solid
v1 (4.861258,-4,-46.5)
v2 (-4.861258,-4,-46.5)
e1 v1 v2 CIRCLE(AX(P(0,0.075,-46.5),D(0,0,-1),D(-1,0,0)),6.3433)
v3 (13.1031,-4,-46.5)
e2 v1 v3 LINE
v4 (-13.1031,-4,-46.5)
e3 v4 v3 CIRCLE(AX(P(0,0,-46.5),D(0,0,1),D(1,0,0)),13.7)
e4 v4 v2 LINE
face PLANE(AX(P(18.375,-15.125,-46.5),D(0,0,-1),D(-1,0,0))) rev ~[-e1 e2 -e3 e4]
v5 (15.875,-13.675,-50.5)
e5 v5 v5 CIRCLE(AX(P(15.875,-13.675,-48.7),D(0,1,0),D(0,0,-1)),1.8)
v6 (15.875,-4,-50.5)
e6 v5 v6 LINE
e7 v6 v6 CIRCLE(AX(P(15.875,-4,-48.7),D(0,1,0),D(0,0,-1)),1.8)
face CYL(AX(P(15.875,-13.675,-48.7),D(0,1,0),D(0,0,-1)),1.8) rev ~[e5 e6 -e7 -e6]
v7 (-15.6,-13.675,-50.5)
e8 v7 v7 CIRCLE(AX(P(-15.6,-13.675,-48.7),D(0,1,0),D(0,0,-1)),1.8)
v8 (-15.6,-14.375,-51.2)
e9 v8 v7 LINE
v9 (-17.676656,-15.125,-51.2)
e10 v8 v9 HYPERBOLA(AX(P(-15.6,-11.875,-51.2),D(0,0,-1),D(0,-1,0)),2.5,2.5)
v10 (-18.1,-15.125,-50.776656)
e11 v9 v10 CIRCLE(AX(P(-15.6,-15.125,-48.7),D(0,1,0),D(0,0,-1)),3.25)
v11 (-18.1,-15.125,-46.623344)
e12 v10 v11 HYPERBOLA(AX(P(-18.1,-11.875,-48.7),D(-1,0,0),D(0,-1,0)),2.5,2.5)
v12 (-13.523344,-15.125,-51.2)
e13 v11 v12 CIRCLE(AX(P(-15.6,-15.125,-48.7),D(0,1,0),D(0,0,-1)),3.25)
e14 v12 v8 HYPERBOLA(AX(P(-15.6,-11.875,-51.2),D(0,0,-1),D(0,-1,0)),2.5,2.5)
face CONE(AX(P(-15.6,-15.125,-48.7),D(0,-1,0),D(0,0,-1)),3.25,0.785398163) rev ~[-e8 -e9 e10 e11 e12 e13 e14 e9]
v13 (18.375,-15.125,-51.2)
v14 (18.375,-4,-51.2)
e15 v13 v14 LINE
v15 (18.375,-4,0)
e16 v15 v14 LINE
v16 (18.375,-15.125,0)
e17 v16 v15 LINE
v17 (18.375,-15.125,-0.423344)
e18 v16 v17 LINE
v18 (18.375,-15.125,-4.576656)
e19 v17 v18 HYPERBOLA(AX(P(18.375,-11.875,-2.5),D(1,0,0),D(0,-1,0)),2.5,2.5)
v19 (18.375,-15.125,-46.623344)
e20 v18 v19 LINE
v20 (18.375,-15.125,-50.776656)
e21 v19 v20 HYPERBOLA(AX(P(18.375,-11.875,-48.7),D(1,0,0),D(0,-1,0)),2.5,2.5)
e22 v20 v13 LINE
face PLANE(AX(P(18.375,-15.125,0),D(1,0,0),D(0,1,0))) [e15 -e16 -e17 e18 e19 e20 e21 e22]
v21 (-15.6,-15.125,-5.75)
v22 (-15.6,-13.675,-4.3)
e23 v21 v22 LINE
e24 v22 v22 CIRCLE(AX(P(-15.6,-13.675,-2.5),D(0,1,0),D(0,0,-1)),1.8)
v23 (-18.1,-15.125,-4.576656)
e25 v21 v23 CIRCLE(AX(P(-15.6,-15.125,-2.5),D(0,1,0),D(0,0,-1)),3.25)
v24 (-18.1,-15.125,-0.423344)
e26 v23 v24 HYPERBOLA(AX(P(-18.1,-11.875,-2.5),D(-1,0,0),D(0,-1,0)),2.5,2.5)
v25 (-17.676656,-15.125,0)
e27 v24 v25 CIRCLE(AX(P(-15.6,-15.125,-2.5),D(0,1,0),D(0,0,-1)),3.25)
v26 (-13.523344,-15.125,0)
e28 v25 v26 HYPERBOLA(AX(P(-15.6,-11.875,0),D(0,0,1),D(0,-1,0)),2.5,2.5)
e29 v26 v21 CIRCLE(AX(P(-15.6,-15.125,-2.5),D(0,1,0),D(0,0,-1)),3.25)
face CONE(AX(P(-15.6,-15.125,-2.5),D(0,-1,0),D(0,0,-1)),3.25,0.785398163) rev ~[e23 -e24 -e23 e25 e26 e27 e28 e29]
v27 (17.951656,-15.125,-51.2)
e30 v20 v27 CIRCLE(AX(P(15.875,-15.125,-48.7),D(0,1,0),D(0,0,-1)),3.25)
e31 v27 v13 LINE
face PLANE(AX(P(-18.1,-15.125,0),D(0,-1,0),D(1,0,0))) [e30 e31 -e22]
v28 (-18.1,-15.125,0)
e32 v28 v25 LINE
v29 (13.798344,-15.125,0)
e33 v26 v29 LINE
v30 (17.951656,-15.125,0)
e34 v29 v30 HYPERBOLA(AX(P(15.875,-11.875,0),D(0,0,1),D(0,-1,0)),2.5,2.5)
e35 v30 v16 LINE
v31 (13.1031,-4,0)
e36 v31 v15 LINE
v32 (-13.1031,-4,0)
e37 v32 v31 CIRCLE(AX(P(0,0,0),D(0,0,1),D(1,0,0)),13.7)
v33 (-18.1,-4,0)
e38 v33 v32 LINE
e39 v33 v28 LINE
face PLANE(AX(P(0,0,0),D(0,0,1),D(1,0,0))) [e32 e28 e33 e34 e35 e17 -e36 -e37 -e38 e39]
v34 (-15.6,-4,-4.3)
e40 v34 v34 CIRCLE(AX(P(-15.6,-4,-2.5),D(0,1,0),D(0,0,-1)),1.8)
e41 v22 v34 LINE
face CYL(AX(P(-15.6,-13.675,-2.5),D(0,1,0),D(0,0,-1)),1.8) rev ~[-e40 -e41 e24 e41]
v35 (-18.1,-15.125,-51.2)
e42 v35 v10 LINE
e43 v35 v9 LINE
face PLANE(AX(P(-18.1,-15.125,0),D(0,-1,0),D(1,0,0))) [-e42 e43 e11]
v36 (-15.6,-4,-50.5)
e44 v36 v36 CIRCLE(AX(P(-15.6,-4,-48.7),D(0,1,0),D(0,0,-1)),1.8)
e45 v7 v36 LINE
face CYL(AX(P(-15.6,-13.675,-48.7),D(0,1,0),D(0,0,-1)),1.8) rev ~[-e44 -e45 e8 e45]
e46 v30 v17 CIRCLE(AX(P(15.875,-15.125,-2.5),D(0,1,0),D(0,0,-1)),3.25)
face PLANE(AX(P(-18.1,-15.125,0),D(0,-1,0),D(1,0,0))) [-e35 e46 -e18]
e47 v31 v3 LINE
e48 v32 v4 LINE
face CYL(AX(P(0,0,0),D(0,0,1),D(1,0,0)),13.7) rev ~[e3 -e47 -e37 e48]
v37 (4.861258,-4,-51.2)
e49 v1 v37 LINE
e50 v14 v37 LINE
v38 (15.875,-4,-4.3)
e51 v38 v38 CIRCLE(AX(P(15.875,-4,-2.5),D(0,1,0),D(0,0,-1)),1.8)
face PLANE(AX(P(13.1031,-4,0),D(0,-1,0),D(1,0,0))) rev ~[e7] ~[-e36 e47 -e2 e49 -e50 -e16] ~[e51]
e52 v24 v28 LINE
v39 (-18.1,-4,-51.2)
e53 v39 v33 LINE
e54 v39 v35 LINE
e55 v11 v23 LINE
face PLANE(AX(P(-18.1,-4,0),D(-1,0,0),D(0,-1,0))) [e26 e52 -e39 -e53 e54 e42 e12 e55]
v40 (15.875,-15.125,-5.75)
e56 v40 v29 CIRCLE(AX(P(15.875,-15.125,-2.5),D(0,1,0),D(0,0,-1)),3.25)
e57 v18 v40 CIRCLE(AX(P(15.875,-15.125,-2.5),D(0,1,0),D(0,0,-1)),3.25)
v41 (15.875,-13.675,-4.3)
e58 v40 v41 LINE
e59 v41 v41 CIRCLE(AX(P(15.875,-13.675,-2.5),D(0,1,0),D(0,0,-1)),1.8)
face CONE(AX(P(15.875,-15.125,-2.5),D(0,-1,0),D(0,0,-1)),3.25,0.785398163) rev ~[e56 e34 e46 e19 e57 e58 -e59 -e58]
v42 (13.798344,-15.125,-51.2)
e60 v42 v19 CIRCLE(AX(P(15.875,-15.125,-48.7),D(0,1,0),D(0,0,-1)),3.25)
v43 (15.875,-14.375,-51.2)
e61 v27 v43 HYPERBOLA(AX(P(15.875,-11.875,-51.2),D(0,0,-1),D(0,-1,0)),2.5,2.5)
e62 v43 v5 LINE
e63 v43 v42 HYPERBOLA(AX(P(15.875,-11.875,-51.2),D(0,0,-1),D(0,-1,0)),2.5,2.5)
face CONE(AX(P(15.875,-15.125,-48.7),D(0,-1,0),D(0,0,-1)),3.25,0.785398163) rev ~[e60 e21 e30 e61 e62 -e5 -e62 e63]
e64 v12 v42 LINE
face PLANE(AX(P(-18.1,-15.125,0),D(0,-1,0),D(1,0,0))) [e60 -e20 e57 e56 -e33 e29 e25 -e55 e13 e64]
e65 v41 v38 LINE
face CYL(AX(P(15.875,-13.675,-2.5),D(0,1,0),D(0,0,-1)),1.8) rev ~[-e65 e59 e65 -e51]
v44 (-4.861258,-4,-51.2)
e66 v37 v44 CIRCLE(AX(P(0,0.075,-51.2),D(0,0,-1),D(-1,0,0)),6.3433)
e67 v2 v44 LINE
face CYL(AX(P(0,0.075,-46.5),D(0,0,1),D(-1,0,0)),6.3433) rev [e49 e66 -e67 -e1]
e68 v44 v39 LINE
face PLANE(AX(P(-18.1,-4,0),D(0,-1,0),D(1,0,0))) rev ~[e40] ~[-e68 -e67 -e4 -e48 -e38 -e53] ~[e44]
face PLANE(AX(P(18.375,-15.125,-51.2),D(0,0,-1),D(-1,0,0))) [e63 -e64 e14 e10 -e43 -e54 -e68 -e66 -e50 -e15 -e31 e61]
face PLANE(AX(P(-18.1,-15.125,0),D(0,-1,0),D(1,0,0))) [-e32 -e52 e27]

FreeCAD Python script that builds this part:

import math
import FreeCAD as App
import Part
import Sketcher

doc = App.newDocument("Part")
body = doc.addObject("PartDesign::Body", "Body")

sketch1 = body.newObject("Sketcher::SketchObject", "Sketch")
sketch1.AttachmentSupport = (doc.getObject("XY_Plane"), [""])
sketch1.MapMode = "FlatFace"
sketch1.addGeometry([
    Part.ArcOfCircle(Part.Circle(App.Vector(0, 0, 0), App.Vector(0, 0, 1), 13.7), math.radians(-163), math.radians(-17)),
    Part.LineSegment(App.Vector(-13.1, -4, 0), App.Vector(-18.1, -4, 0)),
    Part.LineSegment(App.Vector(-18.1, -4, 0), App.Vector(-18.1, -15.1, 0)),
    Part.LineSegment(App.Vector(-18.1, -15.1, 0), App.Vector(18.4, -15.1, 0)),
    Part.LineSegment(App.Vector(18.4, -15.1, 0), App.Vector(18.4, -4, 0)),
    Part.LineSegment(App.Vector(18.4, -4, 0), App.Vector(13.1, -4, 0)),
], False)
sketch1.addConstraint([
    Sketcher.Constraint("Coincident", 0, 1, 1, 1),
    Sketcher.Constraint("Coincident", 1, 2, 2, 1),
    Sketcher.Constraint("Coincident", 2, 2, 3, 1),
    Sketcher.Constraint("Coincident", 3, 2, 4, 1),
    Sketcher.Constraint("Coincident", 4, 2, 5, 1),
    Sketcher.Constraint("Coincident", 5, 2, 0, 2),
    Sketcher.Constraint("Horizontal", 1),
    Sketcher.Constraint("Vertical", 2),
    Sketcher.Constraint("Horizontal", 3),
    Sketcher.Constraint("Vertical", 4),
    Sketcher.Constraint("Horizontal", 5),
    Sketcher.Constraint("Coincident", 0, 3, -1, 1),
    Sketcher.Constraint("Horizontal", 1, 2, 4, 2),
    Sketcher.Constraint("Radius", 0, 13.7),
    Sketcher.Constraint("DistanceY", 0, 1, -1, 1, 4.0),
    Sketcher.Constraint("DistanceX", 1, 2, -1, 1, 18.1),
    Sketcher.Constraint("DistanceX", 3, 1, 3, 2, 36.475),
    Sketcher.Constraint("DistanceY", 2, 2, 2, 1, 11.125),
])
pad1 = body.newObject("PartDesign::Pad", "Pad")
pad1.Profile = sketch1
pad1.Length = 46.5
pad1.Reversed = True

sketch2 = body.newObject("Sketcher::SketchObject", "Sketch001")
sketch2.AttachmentSupport = (doc.getObject("XY_Plane"), [""])
sketch2.MapMode = "FlatFace"
sketch2.AttachmentOffset = App.Placement(App.Vector(0, 0, -46.5), App.Rotation())
sketch2.addGeometry([
    Part.ArcOfCircle(Part.Circle(App.Vector(0, 0, 0), App.Vector(0, 0, 1), 6), math.radians(-140), math.radians(-40)),
    Part.LineSegment(App.Vector(5, -4, 0), App.Vector(18, -4, 0)),
    Part.LineSegment(App.Vector(18, -4, 0), App.Vector(18, -15, 0)),
    Part.LineSegment(App.Vector(18, -15, 0), App.Vector(-18, -15, 0)),
    Part.LineSegment(App.Vector(-18, -15, 0), App.Vector(-18, -4, 0)),
    Part.LineSegment(App.Vector(-18, -4, 0), App.Vector(-5, -4, 0)),
], False)
sketch2.addConstraint([
    Sketcher.Constraint("Coincident", 0, 2, 1, 1),
    Sketcher.Constraint("Coincident", 1, 2, 2, 1),
    Sketcher.Constraint("Coincident", 2, 2, 3, 1),
    Sketcher.Constraint("Coincident", 3, 2, 4, 1),
    Sketcher.Constraint("Coincident", 4, 2, 5, 1),
    Sketcher.Constraint("Coincident", 5, 2, 0, 1),
    Sketcher.Constraint("Horizontal", 1),
    Sketcher.Constraint("Vertical", 2),
    Sketcher.Constraint("Horizontal", 3),
    Sketcher.Constraint("Vertical", 4),
    Sketcher.Constraint("Horizontal", 5),
    Sketcher.Constraint("Symmetric", 0, 2, 5, 2, -2),
    Sketcher.Constraint("DistanceY", 0, 2, -1, 1, 4.0),
    Sketcher.Constraint("DistanceX", 3, 2, -1, 1, 18.1),
    Sketcher.Constraint("Radius", 0, 6.3433),
    Sketcher.Constraint("DistanceY", 2, 2, 0, 3, 15.2),
    Sketcher.Constraint("DistanceX", 3, 2, 3, 1, 36.475),
    Sketcher.Constraint("DistanceY", 2, 2, 2, 1, 11.125),
])
pad2 = body.newObject("PartDesign::Pad", "Pad001")
pad2.Profile = sketch2
pad2.Length = 4.7
pad2.Reversed = True

sketch3 = body.newObject("Sketcher::SketchObject", "Sketch002")
sketch3.AttachmentSupport = (doc.getObject("XZ_Plane"), [""])
sketch3.MapMode = "FlatFace"
sketch3.AttachmentOffset = App.Placement(App.Vector(0, 0, 15.125), App.Rotation())
sketch3.addGeometry([
    Part.Circle(App.Vector(15.9, -2.5, 0), App.Vector(0, 0, 1), 1.8),
    Part.Circle(App.Vector(15.9, -48.7, 0), App.Vector(0, 0, 1), 1.8),
    Part.Circle(App.Vector(-15.6, -48.7, 0), App.Vector(0, 0, 1), 1.8),
    Part.Circle(App.Vector(-15.6, -2.5, 0), App.Vector(0, 0, 1), 1.8),
], False)
sketch3.addConstraint([
    Sketcher.Constraint("Equal", 0, 1),
    Sketcher.Constraint("Equal", 1, 2),
    Sketcher.Constraint("Equal", 2, 3),
    Sketcher.Constraint("Horizontal", 1, 3, 2, 3),
    Sketcher.Constraint("Horizontal", 0, 3, 3, 3),
    Sketcher.Constraint("Vertical", 0, 3, 1, 3),
    Sketcher.Constraint("Vertical", 2, 3, 3, 3),
    Sketcher.Constraint("Diameter", 0, 3.6),
    Sketcher.Constraint("DistanceY", 0, 3, -1, 1, 2.5),
    Sketcher.Constraint("DistanceY", 1, 3, -1, 1, 48.7),
    Sketcher.Constraint("DistanceX", 2, 3, -1, 1, 15.6),
    Sketcher.Constraint("DistanceX", -1, 1, 0, 3, 15.875),
])
doc.recompute()
hole = body.newObject("PartDesign::Hole", "Hole")
hole.Profile = sketch3
hole.ThreadType = "None"
hole.Diameter = 3.6
hole.DepthType = "ThroughAll"
hole.HoleCutType = "Countersink"
hole.HoleCutDiameter = 6.5
hole.HoleCutCountersinkAngle = 90

doc.recompute()
